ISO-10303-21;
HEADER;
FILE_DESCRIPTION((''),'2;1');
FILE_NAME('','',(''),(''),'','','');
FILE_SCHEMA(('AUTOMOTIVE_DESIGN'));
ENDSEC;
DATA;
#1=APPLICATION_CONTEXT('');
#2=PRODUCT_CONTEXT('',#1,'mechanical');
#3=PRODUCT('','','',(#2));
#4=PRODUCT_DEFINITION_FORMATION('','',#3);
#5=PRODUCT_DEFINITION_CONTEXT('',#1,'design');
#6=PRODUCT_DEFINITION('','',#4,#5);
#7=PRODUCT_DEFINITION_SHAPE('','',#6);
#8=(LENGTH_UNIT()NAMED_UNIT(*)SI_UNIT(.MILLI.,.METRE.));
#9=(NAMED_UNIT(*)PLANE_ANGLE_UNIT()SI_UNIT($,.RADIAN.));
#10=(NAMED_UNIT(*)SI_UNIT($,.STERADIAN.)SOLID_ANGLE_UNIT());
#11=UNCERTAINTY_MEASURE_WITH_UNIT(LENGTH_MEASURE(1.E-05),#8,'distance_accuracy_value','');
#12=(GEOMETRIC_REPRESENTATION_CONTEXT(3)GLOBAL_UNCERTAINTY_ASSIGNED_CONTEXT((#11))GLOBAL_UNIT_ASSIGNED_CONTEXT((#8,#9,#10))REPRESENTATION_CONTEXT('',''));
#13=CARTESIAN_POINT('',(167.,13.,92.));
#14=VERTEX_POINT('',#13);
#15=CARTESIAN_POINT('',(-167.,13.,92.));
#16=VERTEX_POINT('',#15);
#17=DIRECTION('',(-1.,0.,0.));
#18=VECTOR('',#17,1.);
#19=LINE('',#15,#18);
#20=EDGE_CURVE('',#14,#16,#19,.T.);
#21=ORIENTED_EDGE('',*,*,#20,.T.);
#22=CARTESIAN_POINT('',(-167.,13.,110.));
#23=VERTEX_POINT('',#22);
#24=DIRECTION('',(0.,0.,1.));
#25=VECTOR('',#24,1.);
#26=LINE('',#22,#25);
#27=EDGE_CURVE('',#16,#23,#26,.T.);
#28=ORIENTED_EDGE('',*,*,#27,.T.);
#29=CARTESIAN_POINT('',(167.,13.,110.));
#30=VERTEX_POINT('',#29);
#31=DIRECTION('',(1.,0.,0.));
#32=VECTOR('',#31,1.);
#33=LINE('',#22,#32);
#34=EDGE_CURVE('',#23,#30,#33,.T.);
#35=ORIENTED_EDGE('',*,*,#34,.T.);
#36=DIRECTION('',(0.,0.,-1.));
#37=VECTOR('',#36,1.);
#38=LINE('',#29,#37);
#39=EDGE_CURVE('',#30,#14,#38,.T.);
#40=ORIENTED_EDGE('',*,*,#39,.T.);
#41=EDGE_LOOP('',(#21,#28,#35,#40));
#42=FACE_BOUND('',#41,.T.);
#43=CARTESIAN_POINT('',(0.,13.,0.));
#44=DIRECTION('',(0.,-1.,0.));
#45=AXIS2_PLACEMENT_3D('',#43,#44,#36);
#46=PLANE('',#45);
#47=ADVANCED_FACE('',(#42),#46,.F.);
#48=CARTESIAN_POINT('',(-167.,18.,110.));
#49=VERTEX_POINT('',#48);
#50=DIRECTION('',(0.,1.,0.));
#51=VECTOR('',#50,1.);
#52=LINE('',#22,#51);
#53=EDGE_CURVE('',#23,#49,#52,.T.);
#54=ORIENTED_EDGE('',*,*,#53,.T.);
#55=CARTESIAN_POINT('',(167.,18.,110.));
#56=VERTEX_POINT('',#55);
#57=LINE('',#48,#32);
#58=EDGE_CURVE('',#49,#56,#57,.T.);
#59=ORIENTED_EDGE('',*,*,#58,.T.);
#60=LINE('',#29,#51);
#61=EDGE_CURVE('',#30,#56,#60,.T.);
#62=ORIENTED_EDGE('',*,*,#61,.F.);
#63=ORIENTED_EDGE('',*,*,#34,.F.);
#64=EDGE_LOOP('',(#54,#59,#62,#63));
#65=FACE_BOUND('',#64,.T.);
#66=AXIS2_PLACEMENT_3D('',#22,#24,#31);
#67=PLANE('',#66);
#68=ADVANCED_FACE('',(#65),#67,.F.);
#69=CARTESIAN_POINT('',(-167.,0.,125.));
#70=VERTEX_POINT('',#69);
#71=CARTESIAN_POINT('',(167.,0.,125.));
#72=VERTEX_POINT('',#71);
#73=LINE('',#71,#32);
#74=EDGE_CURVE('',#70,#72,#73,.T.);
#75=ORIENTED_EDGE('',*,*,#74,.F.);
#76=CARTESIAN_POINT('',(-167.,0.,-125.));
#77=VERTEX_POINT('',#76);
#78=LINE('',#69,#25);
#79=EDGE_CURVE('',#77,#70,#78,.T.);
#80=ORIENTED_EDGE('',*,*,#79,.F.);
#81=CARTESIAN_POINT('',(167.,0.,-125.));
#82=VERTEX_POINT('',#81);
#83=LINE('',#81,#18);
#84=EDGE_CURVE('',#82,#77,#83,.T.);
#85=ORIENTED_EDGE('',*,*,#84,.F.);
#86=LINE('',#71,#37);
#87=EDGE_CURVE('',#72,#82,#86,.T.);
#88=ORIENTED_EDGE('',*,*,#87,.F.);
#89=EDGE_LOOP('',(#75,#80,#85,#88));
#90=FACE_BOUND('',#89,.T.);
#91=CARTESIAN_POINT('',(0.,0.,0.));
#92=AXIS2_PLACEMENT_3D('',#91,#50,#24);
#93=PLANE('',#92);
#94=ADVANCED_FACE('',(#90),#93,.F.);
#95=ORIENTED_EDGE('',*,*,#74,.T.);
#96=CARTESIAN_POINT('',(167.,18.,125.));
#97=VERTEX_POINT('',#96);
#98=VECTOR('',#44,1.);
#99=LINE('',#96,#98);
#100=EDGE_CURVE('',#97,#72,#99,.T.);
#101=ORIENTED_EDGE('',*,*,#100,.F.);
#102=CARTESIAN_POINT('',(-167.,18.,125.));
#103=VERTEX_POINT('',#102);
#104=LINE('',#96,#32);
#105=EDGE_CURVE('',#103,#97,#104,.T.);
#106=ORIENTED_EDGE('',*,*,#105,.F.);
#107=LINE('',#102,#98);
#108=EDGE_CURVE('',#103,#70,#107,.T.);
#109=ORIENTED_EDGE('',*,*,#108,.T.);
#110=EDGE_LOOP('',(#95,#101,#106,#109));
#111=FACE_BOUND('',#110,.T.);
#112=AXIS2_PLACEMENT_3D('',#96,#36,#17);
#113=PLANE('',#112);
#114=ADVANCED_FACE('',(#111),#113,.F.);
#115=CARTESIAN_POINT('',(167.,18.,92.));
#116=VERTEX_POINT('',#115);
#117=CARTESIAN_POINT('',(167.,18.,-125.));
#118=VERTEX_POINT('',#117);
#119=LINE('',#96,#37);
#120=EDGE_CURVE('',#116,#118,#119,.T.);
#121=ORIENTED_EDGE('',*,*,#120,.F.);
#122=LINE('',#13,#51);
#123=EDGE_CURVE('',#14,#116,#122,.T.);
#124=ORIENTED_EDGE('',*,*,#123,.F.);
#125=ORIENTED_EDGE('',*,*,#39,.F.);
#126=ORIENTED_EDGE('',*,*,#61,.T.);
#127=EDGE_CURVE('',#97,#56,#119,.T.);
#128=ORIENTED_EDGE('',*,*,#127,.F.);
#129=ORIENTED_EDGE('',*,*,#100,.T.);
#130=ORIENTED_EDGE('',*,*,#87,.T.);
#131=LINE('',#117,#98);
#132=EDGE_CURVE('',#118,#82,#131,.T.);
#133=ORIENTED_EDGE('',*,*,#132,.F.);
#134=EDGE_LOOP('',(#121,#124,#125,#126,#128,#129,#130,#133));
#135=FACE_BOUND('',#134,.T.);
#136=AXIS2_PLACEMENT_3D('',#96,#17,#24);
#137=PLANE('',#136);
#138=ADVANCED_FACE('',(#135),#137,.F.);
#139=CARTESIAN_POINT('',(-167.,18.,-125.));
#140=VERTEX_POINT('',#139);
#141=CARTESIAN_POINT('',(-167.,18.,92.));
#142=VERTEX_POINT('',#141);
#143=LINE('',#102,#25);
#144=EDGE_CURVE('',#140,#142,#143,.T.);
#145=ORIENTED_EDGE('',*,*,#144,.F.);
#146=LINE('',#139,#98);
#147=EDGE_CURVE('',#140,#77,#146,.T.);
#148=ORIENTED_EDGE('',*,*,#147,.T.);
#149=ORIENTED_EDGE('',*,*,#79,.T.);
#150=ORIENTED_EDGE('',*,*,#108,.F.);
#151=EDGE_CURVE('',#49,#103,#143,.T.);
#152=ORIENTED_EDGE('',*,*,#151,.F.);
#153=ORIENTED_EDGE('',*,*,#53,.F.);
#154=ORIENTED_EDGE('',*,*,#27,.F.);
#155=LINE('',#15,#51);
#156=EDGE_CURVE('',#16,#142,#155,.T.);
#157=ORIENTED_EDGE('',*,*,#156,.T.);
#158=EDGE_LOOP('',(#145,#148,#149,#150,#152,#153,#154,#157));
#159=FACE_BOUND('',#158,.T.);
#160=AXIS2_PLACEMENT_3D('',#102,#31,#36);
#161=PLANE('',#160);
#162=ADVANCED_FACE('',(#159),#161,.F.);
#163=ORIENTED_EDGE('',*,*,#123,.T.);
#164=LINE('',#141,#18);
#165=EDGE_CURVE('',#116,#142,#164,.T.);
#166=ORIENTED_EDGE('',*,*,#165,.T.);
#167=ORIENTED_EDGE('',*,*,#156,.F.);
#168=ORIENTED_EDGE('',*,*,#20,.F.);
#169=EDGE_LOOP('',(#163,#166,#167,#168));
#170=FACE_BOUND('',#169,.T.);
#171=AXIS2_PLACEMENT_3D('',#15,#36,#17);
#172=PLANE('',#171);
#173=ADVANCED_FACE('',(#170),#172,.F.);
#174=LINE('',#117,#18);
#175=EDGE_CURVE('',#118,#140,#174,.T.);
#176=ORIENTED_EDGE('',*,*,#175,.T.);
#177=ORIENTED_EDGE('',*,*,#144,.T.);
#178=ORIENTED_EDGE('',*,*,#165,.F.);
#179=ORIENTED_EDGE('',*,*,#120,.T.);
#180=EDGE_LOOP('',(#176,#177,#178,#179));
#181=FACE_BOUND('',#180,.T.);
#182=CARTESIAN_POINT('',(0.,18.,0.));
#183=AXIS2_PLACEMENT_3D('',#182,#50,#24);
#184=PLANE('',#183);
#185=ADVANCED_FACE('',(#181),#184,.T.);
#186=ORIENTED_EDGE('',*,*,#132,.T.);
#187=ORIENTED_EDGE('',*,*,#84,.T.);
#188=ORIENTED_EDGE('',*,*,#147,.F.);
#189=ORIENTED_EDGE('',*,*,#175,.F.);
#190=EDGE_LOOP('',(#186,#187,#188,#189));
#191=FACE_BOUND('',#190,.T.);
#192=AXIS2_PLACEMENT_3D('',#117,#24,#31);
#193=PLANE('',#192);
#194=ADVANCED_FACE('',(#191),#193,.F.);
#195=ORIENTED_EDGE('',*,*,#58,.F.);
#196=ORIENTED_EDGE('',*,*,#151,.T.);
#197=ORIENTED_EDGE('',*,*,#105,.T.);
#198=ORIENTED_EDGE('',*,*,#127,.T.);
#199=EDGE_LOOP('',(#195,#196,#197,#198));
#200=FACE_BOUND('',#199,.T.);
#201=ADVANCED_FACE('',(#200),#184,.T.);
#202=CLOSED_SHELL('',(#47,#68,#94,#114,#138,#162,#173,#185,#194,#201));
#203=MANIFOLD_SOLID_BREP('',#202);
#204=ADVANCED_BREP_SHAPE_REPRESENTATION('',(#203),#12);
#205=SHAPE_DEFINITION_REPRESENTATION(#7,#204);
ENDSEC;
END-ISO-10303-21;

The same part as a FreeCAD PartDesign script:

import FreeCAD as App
import Part
import Sketcher
from FreeCAD import Vector

doc = App.newDocument("Part")
params = doc.addObject("Spreadsheet::Sheet", "Params")
for row, (alias, value) in enumerate([
    ("sketch1_width", "334 mm"),
    ("sketch1_height", "250 mm"),
    ("pad1_length", "18 mm"),
    ("sketch2_width", "334 mm"),
    ("sketch2_height", "18 mm"),
    ("pocket1_length", "5 mm"),
], start=1):
    params.set(f"A{row}", alias)
    params.set(f"B{row}", "=" + value)
    params.setAlias(f"B{row}", alias)

body = doc.addObject("PartDesign::Body", "Body")

# Sketch on XZ plane
sketch1 = doc.addObject("Sketcher::SketchObject", "Sketch")
body.addObject(sketch1)
sketch1.AttachmentSupport = (doc.XZ_Plane, [""])
sketch1.MapMode = "FlatFace"
sketch1.addGeometry([
    Part.LineSegment(Vector(-167, -125, 0), Vector(-167, 125, 0)),
    Part.LineSegment(Vector(-167, 125, 0), Vector(167, 125, 0)),
    Part.LineSegment(Vector(167, 125, 0), Vector(167, -125, 0)),
    Part.LineSegment(Vector(167, -125, 0), Vector(-167, -125, 0)),
], False)
sketch1.addConstraint([
    Sketcher.Constraint("Coincident", 0, 2, 1, 1),
    Sketcher.Constraint("Coincident", 1, 2, 2, 1),
    Sketcher.Constraint("Coincident", 2, 2, 3, 1),
    Sketcher.Constraint("Coincident", 3, 2, 0, 1),
    Sketcher.Constraint("Vertical", 0),
    Sketcher.Constraint("Horizontal", 1),
    Sketcher.Constraint("Vertical", 2),
    Sketcher.Constraint("Horizontal", 3),
    Sketcher.Constraint("Symmetric", 0, 2, 2, 2, -1, 1),
    Sketcher.Constraint("DistanceX", 1, 1, 1, 2, 334.0),
    Sketcher.Constraint("DistanceY", 0, 1, 0, 2, 250.0),
])
sketch1.setExpression("Constraints[9]", "Params.sketch1_width")
sketch1.setExpression("Constraints[10]", "Params.sketch1_height")
pad1 = doc.addObject("PartDesign::Pad", "Pad")
body.addObject(pad1)
pad1.Profile = sketch1
pad1.setExpression("Length", "Params.pad1_length")
pad1.Reversed = True

# Sketch on XZ plane
sketch2 = doc.addObject("Sketcher::SketchObject", "Sketch001")
body.addObject(sketch2)
sketch2.AttachmentSupport = (doc.XZ_Plane, [""])
sketch2.MapMode = "FlatFace"
sketch2.AttachmentOffset = App.Placement(Vector(0, 0, -18), App.Rotation())
sketch2.addGeometry([
    Part.LineSegment(Vector(-167, 92, 0), Vector(-167, 110, 0)),
    Part.LineSegment(Vector(-167, 110, 0), Vector(167, 110, 0)),
    Part.LineSegment(Vector(167, 110, 0), Vector(167, 92, 0)),
    Part.LineSegment(Vector(167, 92, 0), Vector(-167, 92, 0)),
], False)
sketch2.addConstraint([
    Sketcher.Constraint("Coincident", 0, 2, 1, 1),
    Sketcher.Constraint("Coincident", 1, 2, 2, 1),
    Sketcher.Constraint("Coincident", 2, 2, 3, 1),
    Sketcher.Constraint("Coincident", 3, 2, 0, 1),
    Sketcher.Constraint("Vertical", 0),
    Sketcher.Constraint("Horizontal", 1),
    Sketcher.Constraint("Vertical", 2),
    Sketcher.Constraint("Horizontal", 3),
    Sketcher.Constraint("DistanceX", 1, 1, 1, 2, 334.0),
    Sketcher.Constraint("DistanceY", 0, 1, 0, 2, 18.0),
    Sketcher.Constraint("DistanceX", 0, 2, -1, 1, 167.0),
    Sketcher.Constraint("DistanceY", -1, 1, 0, 2, 110.0),
])
sketch2.setExpression("Constraints[8]", "Params.sketch2_width")
sketch2.setExpression("Constraints[9]", "Params.sketch2_height")
pocket1 = doc.addObject("PartDesign::Pocket", "Pocket")
body.addObject(pocket1)
pocket1.Profile = sketch2
pocket1.setExpression("Length", "Params.pocket1_length")
pocket1.Reversed = True

doc.recompute()
